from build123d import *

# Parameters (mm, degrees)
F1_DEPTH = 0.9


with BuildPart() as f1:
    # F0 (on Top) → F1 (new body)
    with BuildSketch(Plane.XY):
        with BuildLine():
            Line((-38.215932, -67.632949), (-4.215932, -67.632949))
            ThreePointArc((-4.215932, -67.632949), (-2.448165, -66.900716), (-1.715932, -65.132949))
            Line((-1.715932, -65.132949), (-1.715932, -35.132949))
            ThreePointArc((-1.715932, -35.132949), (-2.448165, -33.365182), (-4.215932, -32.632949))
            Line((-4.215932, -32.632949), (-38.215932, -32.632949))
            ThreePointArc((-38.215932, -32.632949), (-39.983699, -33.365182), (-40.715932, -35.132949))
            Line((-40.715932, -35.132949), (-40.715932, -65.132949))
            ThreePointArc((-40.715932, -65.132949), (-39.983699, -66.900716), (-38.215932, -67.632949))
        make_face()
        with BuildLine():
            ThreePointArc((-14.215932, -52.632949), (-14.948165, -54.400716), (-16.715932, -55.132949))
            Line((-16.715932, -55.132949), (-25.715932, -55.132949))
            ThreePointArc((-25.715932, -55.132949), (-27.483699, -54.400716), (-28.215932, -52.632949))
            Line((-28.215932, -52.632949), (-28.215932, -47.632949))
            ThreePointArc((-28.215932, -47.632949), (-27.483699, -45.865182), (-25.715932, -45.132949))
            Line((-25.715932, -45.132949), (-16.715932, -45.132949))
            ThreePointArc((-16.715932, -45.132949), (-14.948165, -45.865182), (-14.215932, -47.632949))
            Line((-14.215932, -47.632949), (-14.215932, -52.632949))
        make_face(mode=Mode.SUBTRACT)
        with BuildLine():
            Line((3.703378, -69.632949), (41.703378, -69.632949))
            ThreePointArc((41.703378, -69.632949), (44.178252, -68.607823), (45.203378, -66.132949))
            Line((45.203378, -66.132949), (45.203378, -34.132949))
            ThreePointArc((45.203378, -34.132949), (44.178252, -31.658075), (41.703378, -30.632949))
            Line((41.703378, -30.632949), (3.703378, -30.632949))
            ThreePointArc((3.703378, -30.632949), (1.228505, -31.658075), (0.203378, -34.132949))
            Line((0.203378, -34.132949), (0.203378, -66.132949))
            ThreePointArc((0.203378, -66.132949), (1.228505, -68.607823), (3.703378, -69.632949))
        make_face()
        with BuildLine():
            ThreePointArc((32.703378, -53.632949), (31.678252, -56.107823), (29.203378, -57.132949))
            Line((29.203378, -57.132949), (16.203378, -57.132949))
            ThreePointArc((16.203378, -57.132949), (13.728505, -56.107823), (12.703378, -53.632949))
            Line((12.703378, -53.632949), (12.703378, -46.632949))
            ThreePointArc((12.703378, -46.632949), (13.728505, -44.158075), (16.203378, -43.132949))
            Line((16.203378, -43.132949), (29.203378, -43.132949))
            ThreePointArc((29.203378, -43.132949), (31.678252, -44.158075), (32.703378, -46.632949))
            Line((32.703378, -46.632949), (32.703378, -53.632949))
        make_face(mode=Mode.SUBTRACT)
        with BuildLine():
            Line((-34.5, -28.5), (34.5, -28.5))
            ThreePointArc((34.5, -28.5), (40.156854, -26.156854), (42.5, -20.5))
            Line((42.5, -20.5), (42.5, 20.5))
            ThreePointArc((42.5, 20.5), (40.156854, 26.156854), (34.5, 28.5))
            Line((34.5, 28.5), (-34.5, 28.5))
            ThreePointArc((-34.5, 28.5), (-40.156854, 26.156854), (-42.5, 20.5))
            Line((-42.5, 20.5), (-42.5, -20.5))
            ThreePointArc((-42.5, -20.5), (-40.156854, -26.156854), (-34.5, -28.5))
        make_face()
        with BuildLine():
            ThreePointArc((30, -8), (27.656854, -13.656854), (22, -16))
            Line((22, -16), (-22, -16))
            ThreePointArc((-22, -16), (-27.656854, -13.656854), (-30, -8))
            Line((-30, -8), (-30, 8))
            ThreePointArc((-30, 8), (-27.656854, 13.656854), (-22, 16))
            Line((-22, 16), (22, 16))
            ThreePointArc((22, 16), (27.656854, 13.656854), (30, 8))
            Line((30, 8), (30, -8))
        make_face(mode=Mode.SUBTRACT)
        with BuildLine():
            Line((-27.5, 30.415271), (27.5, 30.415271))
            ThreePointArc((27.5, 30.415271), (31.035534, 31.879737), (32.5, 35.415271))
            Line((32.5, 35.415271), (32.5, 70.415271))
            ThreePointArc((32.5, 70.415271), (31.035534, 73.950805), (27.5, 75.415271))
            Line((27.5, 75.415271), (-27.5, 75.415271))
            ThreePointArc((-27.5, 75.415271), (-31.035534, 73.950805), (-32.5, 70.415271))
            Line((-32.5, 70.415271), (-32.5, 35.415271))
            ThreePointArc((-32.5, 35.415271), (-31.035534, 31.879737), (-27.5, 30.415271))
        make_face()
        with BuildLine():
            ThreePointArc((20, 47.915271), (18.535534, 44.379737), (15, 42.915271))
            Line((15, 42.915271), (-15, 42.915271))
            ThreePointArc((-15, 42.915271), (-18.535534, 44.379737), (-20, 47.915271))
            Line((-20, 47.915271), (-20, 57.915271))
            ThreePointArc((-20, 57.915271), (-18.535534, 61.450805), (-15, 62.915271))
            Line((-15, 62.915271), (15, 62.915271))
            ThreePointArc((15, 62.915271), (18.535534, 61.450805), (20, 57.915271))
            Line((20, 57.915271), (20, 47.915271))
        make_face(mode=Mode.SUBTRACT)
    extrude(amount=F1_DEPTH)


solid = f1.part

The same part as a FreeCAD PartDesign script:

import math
import FreeCAD as App
import Part
import Sketcher

V = App.Vector
Q = App.Units.Quantity

doc = App.newDocument("Part")
body = doc.addObject("PartDesign::Body", "Body")
body.AllowCompound = True

# Sketch on XY plane
sketch1 = body.newObject("Sketcher::SketchObject", "Sketch")
sketch1.AttachmentSupport = (doc.getObject("XY_Plane"), [""])
sketch1.MapMode = "FlatFace"
sketch1.addGeometry([
    Part.LineSegment(V(-38.215932, -67.632949, 0), V(-4.215932, -67.632949, 0)),  # 0
    Part.ArcOfCircle(Part.Circle(V(-4.215932, -65.132949, 0), V(0, 0, 1), 2.5), math.radians(-90.000004), math.radians(0.000004)),  # 1
    Part.LineSegment(V(-1.715932, -65.132949, 0), V(-1.715932, -35.132949, 0)),  # 2
    Part.ArcOfCircle(Part.Circle(V(-4.215932, -35.132949, 0), V(0, 0, 1), 2.5), math.radians(-0.000004), math.radians(90.000004)),  # 3
    Part.LineSegment(V(-4.215932, -32.632949, 0), V(-38.215932, -32.632949, 0)),  # 4
    Part.ArcOfCircle(Part.Circle(V(-38.215932, -35.132949, 0), V(0, 0, 1), 2.5), math.radians(89.999996), math.radians(180.000004)),  # 5
    Part.LineSegment(V(-40.715932, -35.132949, 0), V(-40.715932, -65.132949, 0)),  # 6
    Part.ArcOfCircle(Part.Circle(V(-38.215932, -65.132949, 0), V(0, 0, 1), 2.5), math.radians(179.999996), math.radians(270.000004)),  # 7
    Part.LineSegment(V(-14.215932, -47.632949, 0), V(-14.215932, -52.632949, 0)),  # 8
    Part.ArcOfCircle(Part.Circle(V(-16.715932, -52.632949, 0), V(0, 0, 1), 2.5), math.radians(-90.000004), math.radians(0.000004)),  # 9
    Part.LineSegment(V(-16.715932, -55.132949, 0), V(-25.715932, -55.132949, 0)),  # 10
    Part.ArcOfCircle(Part.Circle(V(-25.715932, -52.632949, 0), V(0, 0, 1), 2.5), math.radians(179.999996), math.radians(270.000004)),  # 11
    Part.LineSegment(V(-28.215932, -52.632949, 0), V(-28.215932, -47.632949, 0)),  # 12
    Part.ArcOfCircle(Part.Circle(V(-25.715932, -47.632949, 0), V(0, 0, 1), 2.5), math.radians(89.999996), math.radians(180.000004)),  # 13
    Part.LineSegment(V(-25.715932, -45.132949, 0), V(-16.715932, -45.132949, 0)),  # 14
    Part.ArcOfCircle(Part.Circle(V(-16.715932, -47.632949, 0), V(0, 0, 1), 2.5), math.radians(-0.000004), math.radians(90.000004)),  # 15
    Part.LineSegment(V(3.703378, -69.632949, 0), V(41.703378, -69.632949, 0)),  # 16
    Part.ArcOfCircle(Part.Circle(V(41.703379, -66.13295, 0), V(0, 0, 1), 3.499999), math.radians(-90.000015), math.radians(0.000015)),  # 17
    Part.LineSegment(V(45.203378, -66.132949, 0), V(45.203378, -34.132949, 0)),  # 18
    Part.ArcOfCircle(Part.Circle(V(41.703379, -34.132948, 0), V(0, 0, 1), 3.499999), math.radians(-0.000015), math.radians(90.000015)),  # 19
    Part.LineSegment(V(41.703378, -30.632949, 0), V(3.703378, -30.632949, 0)),  # 20
    Part.ArcOfCircle(Part.Circle(V(3.703379, -34.13295, 0), V(0, 0, 1), 3.500001), math.radians(90.000013), math.radians(179.999987)),  # 21
    Part.LineSegment(V(0.203378, -34.132949, 0), V(0.203378, -66.132949, 0)),  # 22
    Part.ArcOfCircle(Part.Circle(V(3.703379, -66.132948, 0), V(0, 0, 1), 3.500001), math.radians(-179.999987), math.radians(-90.000013)),  # 23
    Part.LineSegment(V(32.703378, -46.632949, 0), V(32.703378, -53.632949, 0)),  # 24
    Part.ArcOfCircle(Part.Circle(V(29.203379, -53.63295, 0), V(0, 0, 1), 3.499999), math.radians(-90.000015), math.radians(0.000015)),  # 25
    Part.LineSegment(V(29.203378, -57.132949, 0), V(16.203378, -57.132949, 0)),  # 26
    Part.ArcOfCircle(Part.Circle(V(16.203379, -53.632948, 0), V(0, 0, 1), 3.500001), math.radians(-179.999987), math.radians(-90.000013)),  # 27
    Part.LineSegment(V(12.703378, -53.632949, 0), V(12.703378, -46.632949, 0)),  # 28
    Part.ArcOfCircle(Part.Circle(V(16.203379, -46.63295, 0), V(0, 0, 1), 3.500001), math.radians(90.000013), math.radians(179.999987)),  # 29
    Part.LineSegment(V(16.203378, -43.132949, 0), V(29.203378, -43.132949, 0)),  # 30
    Part.ArcOfCircle(Part.Circle(V(29.203379, -46.632948, 0), V(0, 0, 1), 3.499999), math.radians(-0.000015), math.radians(90.000015)),  # 31
    Part.LineSegment(V(-34.5, -28.5, 0), V(34.5, -28.5, 0)),  # 32
    Part.ArcOfCircle(Part.Circle(V(34.499999, -20.499999, 0), V(0, 0, 1), 8.000001), math.radians(-89.999994), math.radians(-0.000006)),  # 33
    Part.LineSegment(V(42.5, -20.5, 0), V(42.5, 20.5, 0)),  # 34
    Part.ArcOfCircle(Part.Circle(V(34.499999, 20.499999, 0), V(0, 0, 1), 8.000001), math.radians(0.000006), math.radians(89.999994)),  # 35
    Part.LineSegment(V(34.5, 28.5, 0), V(-34.5, 28.5, 0)),  # 36
    Part.ArcOfCircle(Part.Circle(V(-34.499999, 20.499999, 0), V(0, 0, 1), 8.000001), math.radians(90.000006), math.radians(179.999994)),  # 37
    Part.LineSegment(V(-42.5, 20.5, 0), V(-42.5, -20.5, 0)),  # 38
    Part.ArcOfCircle(Part.Circle(V(-34.499999, -20.499999, 0), V(0, 0, 1), 8.000001), math.radians(-179.999994), math.radians(-90.000006)),  # 39
    Part.LineSegment(V(30, 8, 0), V(30, -8, 0)),  # 40
    Part.ArcOfCircle(Part.Circle(V(21.999999, -7.999999, 0), V(0, 0, 1), 8.000001), math.radians(-89.999994), math.radians(-0.000006)),  # 41
    Part.LineSegment(V(22, -16, 0), V(-22, -16, 0)),  # 42
    Part.ArcOfCircle(Part.Circle(V(-21.999999, -7.999999, 0), V(0, 0, 1), 8.000001), math.radians(-179.999994), math.radians(-90.000006)),  # 43
    Part.LineSegment(V(-30, -8, 0), V(-30, 8, 0)),  # 44
    Part.ArcOfCircle(Part.Circle(V(-21.999999, 7.999999, 0), V(0, 0, 1), 8.000001), math.radians(90.000006), math.radians(179.999994)),  # 45
    Part.LineSegment(V(-22, 16, 0), V(22, 16, 0)),  # 46
    Part.ArcOfCircle(Part.Circle(V(21.999999, 7.999999, 0), V(0, 0, 1), 8.000001), math.radians(0.000006), math.radians(89.999994)),  # 47
    Part.LineSegment(V(-27.5, 30.415271, 0), V(27.5, 30.415271, 0)),  # 48
    Part.ArcOfCircle(Part.Circle(V(27.5, 35.415271, 0), V(0, 0, 1), 5), math.radians(-90.000004), math.radians(0.000004)),  # 49
    Part.LineSegment(V(32.5, 35.415271, 0), V(32.5, 70.415271, 0)),  # 50
    Part.ArcOfCircle(Part.Circle(V(27.5, 70.415271, 0), V(0, 0, 1), 5), math.radians(-0.000004), math.radians(90.000004)),  # 51
    Part.LineSegment(V(27.5, 75.415271, 0), V(-27.5, 75.415271, 0)),  # 52
    Part.ArcOfCircle(Part.Circle(V(-27.5, 70.415271, 0), V(0, 0, 1), 5), math.radians(89.999996), math.radians(180.000004)),  # 53
    Part.LineSegment(V(-32.5, 70.415271, 0), V(-32.5, 35.415271, 0)),  # 54
    Part.ArcOfCircle(Part.Circle(V(-27.5, 35.415271, 0), V(0, 0, 1), 5), math.radians(179.999996), math.radians(270.000004)),  # 55
    Part.LineSegment(V(20, 57.915271, 0), V(20, 47.915271, 0)),  # 56
    Part.ArcOfCircle(Part.Circle(V(15, 47.915271, 0), V(0, 0, 1), 5), math.radians(-90.000004), math.radians(0.000004)),  # 57
    Part.LineSegment(V(15, 42.915271, 0), V(-15, 42.915271, 0)),  # 58
    Part.ArcOfCircle(Part.Circle(V(-15, 47.915271, 0), V(0, 0, 1), 5), math.radians(179.999996), math.radians(270.000004)),  # 59
    Part.LineSegment(V(-20, 47.915271, 0), V(-20, 57.915271, 0)),  # 60
    Part.ArcOfCircle(Part.Circle(V(-15, 57.915271, 0), V(0, 0, 1), 5), math.radians(89.999996), math.radians(180.000004)),  # 61
    Part.LineSegment(V(-15, 62.915271, 0), V(15, 62.915271, 0)),  # 62
    Part.ArcOfCircle(Part.Circle(V(15, 57.915271, 0), V(0, 0, 1), 5), math.radians(-0.000004), math.radians(90.000004)),  # 63
], False)
sketch1.addConstraint([
    Sketcher.Constraint("Tangent", 0, 2, 1, 1),
    Sketcher.Constraint("Tangent", 1, 2, 2, 1),
    Sketcher.Constraint("Tangent", 2, 2, 3, 1),
    Sketcher.Constraint("Tangent", 3, 2, 4, 1),
    Sketcher.Constraint("Tangent", 4, 2, 5, 1),
    Sketcher.Constraint("Tangent", 5, 2, 6, 1),
    Sketcher.Constraint("Tangent", 6, 2, 7, 1),
    Sketcher.Constraint("Tangent", 7, 2, 0, 1),
    Sketcher.Constraint("Tangent", 8, 2, 9, 2),
    Sketcher.Constraint("Tangent", 9, 1, 10, 1),
    Sketcher.Constraint("Tangent", 10, 2, 11, 2),
    Sketcher.Constraint("Tangent", 11, 1, 12, 1),
    Sketcher.Constraint("Tangent", 12, 2, 13, 2),
    Sketcher.Constraint("Tangent", 13, 1, 14, 1),
    Sketcher.Constraint("Tangent", 14, 2, 15, 2),
    Sketcher.Constraint("Tangent", 15, 1, 8, 1),
    Sketcher.Constraint("Tangent", 16, 2, 17, 1),
    Sketcher.Constraint("Tangent", 17, 2, 18, 1),
    Sketcher.Constraint("Tangent", 18, 2, 19, 1),
    Sketcher.Constraint("Tangent", 19, 2, 20, 1),
    Sketcher.Constraint("Tangent", 20, 2, 21, 1),
    Sketcher.Constraint("Tangent", 21, 2, 22, 1),
    Sketcher.Constraint("Tangent", 22, 2, 23, 1),
    Sketcher.Constraint("Tangent", 23, 2, 16, 1),
    Sketcher.Constraint("Tangent", 24, 2, 25, 2),
    Sketcher.Constraint("Tangent", 25, 1, 26, 1),
    Sketcher.Constraint("Tangent", 26, 2, 27, 2),
    Sketcher.Constraint("Tangent", 27, 1, 28, 1),
    Sketcher.Constraint("Tangent", 28, 2, 29, 2),
    Sketcher.Constraint("Tangent", 29, 1, 30, 1),
    Sketcher.Constraint("Tangent", 30, 2, 31, 2),
    Sketcher.Constraint("Tangent", 31, 1, 24, 1),
    Sketcher.Constraint("Tangent", 32, 2, 33, 1),
    Sketcher.Constraint("Tangent", 33, 2, 34, 1),
    Sketcher.Constraint("Tangent", 34, 2, 35, 1),
    Sketcher.Constraint("Tangent", 35, 2, 36, 1),
    Sketcher.Constraint("Tangent", 36, 2, 37, 1),
    Sketcher.Constraint("Tangent", 37, 2, 38, 1),
    Sketcher.Constraint("Tangent", 38, 2, 39, 1),
    Sketcher.Constraint("Tangent", 39, 2, 32, 1),
    Sketcher.Constraint("Tangent", 40, 2, 41, 2),
    Sketcher.Constraint("Tangent", 41, 1, 42, 1),
    Sketcher.Constraint("Tangent", 42, 2, 43, 2),
    Sketcher.Constraint("Tangent", 43, 1, 44, 1),
    Sketcher.Constraint("Tangent", 44, 2, 45, 2),
    Sketcher.Constraint("Tangent", 45, 1, 46, 1),
    Sketcher.Constraint("Tangent", 46, 2, 47, 2),
    Sketcher.Constraint("Tangent", 47, 1, 40, 1),
    Sketcher.Constraint("Tangent", 48, 2, 49, 1),
    Sketcher.Constraint("Tangent", 49, 2, 50, 1),
    Sketcher.Constraint("Tangent", 50, 2, 51, 1),
    Sketcher.Constraint("Tangent", 51, 2, 52, 1),
    Sketcher.Constraint("Tangent", 52, 2, 53, 1),
    Sketcher.Constraint("Tangent", 53, 2, 54, 1),
    Sketcher.Constraint("Tangent", 54, 2, 55, 1),
    Sketcher.Constraint("Tangent", 55, 2, 48, 1),
    Sketcher.Constraint("Tangent", 56, 2, 57, 2),
    Sketcher.Constraint("Tangent", 57, 1, 58, 1),
    Sketcher.Constraint("Tangent", 58, 2, 59, 2),
    Sketcher.Constraint("Tangent", 59, 1, 60, 1),
    Sketcher.Constraint("Tangent", 60, 2, 61, 2),
    Sketcher.Constraint("Tangent", 61, 1, 62, 1),
    Sketcher.Constraint("Tangent", 62, 2, 63, 2),
    Sketcher.Constraint("Tangent", 63, 1, 56, 1),
    Sketcher.Constraint("Horizontal", 0),
    Sketcher.Constraint("Vertical", 2),
    Sketcher.Constraint("Horizontal", 4),
    Sketcher.Constraint("Vertical", 6),
    Sketcher.Constraint("Vertical", 8),
    Sketcher.Constraint("Horizontal", 10),
    Sketcher.Constraint("Vertical", 12),
    Sketcher.Constraint("Horizontal", 14),
    Sketcher.Constraint("Horizontal", 16),
    Sketcher.Constraint("Vertical", 18),
    Sketcher.Constraint("Horizontal", 20),
    Sketcher.Constraint("Vertical", 22),
    Sketcher.Constraint("Vertical", 24),
    Sketcher.Constraint("Horizontal", 26),
    Sketcher.Constraint("Vertical", 28),
    Sketcher.Constraint("Horizontal", 30),
    Sketcher.Constraint("Horizontal", 32),
    Sketcher.Constraint("Vertical", 34),
    Sketcher.Constraint("Horizontal", 36),
    Sketcher.Constraint("Vertical", 38),
    Sketcher.Constraint("Vertical", 40),
    Sketcher.Constraint("Horizontal", 42),
    Sketcher.Constraint("Vertical", 44),
    Sketcher.Constraint("Horizontal", 46),
    Sketcher.Constraint("Horizontal", 48),
    Sketcher.Constraint("Vertical", 50),
    Sketcher.Constraint("Horizontal", 52),
    Sketcher.Constraint("Vertical", 54),
    Sketcher.Constraint("Vertical", 56),
    Sketcher.Constraint("Horizontal", 58),
    Sketcher.Constraint("Vertical", 60),
    Sketcher.Constraint("Horizontal", 62),
    Sketcher.Constraint("Equal", 1, 3),
    Sketcher.Constraint("Equal", 3, 5),
    Sketcher.Constraint("Equal", 5, 7),
    Sketcher.Constraint("Equal", 7, 9),
    Sketcher.Constraint("Equal", 9, 11),
    Sketcher.Constraint("Equal", 11, 13),
    Sketcher.Constraint("Equal", 13, 15),
    Sketcher.Constraint("Equal", 17, 19),
    Sketcher.Constraint("Equal", 19, 21),
    Sketcher.Constraint("Equal", 21, 23),
    Sketcher.Constraint("Equal", 23, 25),
    Sketcher.Constraint("Equal", 25, 27),
    Sketcher.Constraint("Equal", 27, 29),
    Sketcher.Constraint("Equal", 29, 31),
    Sketcher.Constraint("Equal", 33, 35),
    Sketcher.Constraint("Equal", 35, 37),
    Sketcher.Constraint("Equal", 37, 39),
    Sketcher.Constraint("Equal", 39, 41),
    Sketcher.Constraint("Equal", 41, 43),
    Sketcher.Constraint("Equal", 43, 45),
    Sketcher.Constraint("Equal", 45, 47),
    Sketcher.Constraint("Equal", 49, 51),
    Sketcher.Constraint("Equal", 51, 53),
    Sketcher.Constraint("Equal", 53, 55),
    Sketcher.Constraint("Equal", 55, 57),
    Sketcher.Constraint("Equal", 57, 59),
    Sketcher.Constraint("Equal", 59, 61),
    Sketcher.Constraint("Equal", 61, 63),
    Sketcher.Constraint("Symmetric", 33, 3, 37, 3, -1, 1),
    Sketcher.Constraint("Symmetric", 41, 3, 45, 3, -1, 1),
    Sketcher.Constraint("Equal", 62, 2),
    Sketcher.Constraint("Radius", 33, Q("8.000001 mm")),
    Sketcher.Constraint("Radius", 49, Q("5 mm")),
    Sketcher.Constraint("Radius", 1, Q("2.5 mm")),
    Sketcher.Constraint("Radius", 17, Q("3.499999 mm")),
    Sketcher.Constraint("DistanceX", 0, 1, 0, 2, Q("34 mm")),
    Sketcher.Constraint("DistanceX", 10, 2, 10, 1, Q("9 mm")),
    Sketcher.Constraint("DistanceX", 16, 1, 16, 2, Q("38 mm")),
    Sketcher.Constraint("DistanceX", 26, 2, 26, 1, Q("13 mm")),
    Sketcher.Constraint("DistanceX", 32, 1, 32, 2, Q("69 mm")),
    Sketcher.Constraint("DistanceX", 42, 2, 42, 1, Q("44 mm")),
    Sketcher.Constraint("DistanceX", 48, 1, 48, 2, Q("55 mm")),
    Sketcher.Constraint("DistanceX", 58, 2, 58, 1, Q("30 mm")),
    Sketcher.Constraint("DistanceY", 8, 2, 8, 1, Q("5 mm")),
    Sketcher.Constraint("DistanceY", 18, 1, 18, 2, Q("32 mm")),
    Sketcher.Constraint("DistanceY", 24, 2, 24, 1, Q("7 mm")),
    Sketcher.Constraint("DistanceY", 34, 1, 34, 2, Q("41 mm")),
    Sketcher.Constraint("DistanceY", 40, 2, 40, 1, Q("16 mm")),
    Sketcher.Constraint("DistanceY", 50, 1, 50, 2, Q("35 mm")),
    Sketcher.Constraint("DistanceY", 56, 2, 56, 1, Q("10 mm")),
    Sketcher.Constraint("DistanceX", -1, 1, 57, 3, Q("15 mm")),
    Sketcher.Constraint("DistanceX", -1, 1, 49, 3, Q("27.5 mm")),
    Sketcher.Constraint("DistanceX", 1, 3, -1, 1, Q("4.215932 mm")),
    Sketcher.Constraint("DistanceY", 1, 3, -1, 1, Q("65.132949 mm")),
    Sketcher.Constraint("DistanceX", 9, 3, -1, 1, Q("16.715932 mm")),
    Sketcher.Constraint("DistanceY", 9, 3, -1, 1, Q("52.632949 mm")),
    Sketcher.Constraint("DistanceX", -1, 1, 17, 3, Q("41.703379 mm")),
    Sketcher.Constraint("DistanceY", 17, 3, -1, 1, Q("66.13295 mm")),
    Sketcher.Constraint("DistanceX", -1, 1, 25, 3, Q("29.203379 mm")),
    Sketcher.Constraint("DistanceY", 25, 3, -1, 1, Q("53.63295 mm")),
    Sketcher.Constraint("DistanceY", -1, 1, 49, 3, Q("35.415271 mm")),
    Sketcher.Constraint("DistanceY", -1, 1, 57, 3, Q("47.915271 mm")),
])
pad1 = body.newObject("PartDesign::Pad", "Pad")
pad1.Profile = sketch1
pad1.Length = 0.9

doc.recompute()
